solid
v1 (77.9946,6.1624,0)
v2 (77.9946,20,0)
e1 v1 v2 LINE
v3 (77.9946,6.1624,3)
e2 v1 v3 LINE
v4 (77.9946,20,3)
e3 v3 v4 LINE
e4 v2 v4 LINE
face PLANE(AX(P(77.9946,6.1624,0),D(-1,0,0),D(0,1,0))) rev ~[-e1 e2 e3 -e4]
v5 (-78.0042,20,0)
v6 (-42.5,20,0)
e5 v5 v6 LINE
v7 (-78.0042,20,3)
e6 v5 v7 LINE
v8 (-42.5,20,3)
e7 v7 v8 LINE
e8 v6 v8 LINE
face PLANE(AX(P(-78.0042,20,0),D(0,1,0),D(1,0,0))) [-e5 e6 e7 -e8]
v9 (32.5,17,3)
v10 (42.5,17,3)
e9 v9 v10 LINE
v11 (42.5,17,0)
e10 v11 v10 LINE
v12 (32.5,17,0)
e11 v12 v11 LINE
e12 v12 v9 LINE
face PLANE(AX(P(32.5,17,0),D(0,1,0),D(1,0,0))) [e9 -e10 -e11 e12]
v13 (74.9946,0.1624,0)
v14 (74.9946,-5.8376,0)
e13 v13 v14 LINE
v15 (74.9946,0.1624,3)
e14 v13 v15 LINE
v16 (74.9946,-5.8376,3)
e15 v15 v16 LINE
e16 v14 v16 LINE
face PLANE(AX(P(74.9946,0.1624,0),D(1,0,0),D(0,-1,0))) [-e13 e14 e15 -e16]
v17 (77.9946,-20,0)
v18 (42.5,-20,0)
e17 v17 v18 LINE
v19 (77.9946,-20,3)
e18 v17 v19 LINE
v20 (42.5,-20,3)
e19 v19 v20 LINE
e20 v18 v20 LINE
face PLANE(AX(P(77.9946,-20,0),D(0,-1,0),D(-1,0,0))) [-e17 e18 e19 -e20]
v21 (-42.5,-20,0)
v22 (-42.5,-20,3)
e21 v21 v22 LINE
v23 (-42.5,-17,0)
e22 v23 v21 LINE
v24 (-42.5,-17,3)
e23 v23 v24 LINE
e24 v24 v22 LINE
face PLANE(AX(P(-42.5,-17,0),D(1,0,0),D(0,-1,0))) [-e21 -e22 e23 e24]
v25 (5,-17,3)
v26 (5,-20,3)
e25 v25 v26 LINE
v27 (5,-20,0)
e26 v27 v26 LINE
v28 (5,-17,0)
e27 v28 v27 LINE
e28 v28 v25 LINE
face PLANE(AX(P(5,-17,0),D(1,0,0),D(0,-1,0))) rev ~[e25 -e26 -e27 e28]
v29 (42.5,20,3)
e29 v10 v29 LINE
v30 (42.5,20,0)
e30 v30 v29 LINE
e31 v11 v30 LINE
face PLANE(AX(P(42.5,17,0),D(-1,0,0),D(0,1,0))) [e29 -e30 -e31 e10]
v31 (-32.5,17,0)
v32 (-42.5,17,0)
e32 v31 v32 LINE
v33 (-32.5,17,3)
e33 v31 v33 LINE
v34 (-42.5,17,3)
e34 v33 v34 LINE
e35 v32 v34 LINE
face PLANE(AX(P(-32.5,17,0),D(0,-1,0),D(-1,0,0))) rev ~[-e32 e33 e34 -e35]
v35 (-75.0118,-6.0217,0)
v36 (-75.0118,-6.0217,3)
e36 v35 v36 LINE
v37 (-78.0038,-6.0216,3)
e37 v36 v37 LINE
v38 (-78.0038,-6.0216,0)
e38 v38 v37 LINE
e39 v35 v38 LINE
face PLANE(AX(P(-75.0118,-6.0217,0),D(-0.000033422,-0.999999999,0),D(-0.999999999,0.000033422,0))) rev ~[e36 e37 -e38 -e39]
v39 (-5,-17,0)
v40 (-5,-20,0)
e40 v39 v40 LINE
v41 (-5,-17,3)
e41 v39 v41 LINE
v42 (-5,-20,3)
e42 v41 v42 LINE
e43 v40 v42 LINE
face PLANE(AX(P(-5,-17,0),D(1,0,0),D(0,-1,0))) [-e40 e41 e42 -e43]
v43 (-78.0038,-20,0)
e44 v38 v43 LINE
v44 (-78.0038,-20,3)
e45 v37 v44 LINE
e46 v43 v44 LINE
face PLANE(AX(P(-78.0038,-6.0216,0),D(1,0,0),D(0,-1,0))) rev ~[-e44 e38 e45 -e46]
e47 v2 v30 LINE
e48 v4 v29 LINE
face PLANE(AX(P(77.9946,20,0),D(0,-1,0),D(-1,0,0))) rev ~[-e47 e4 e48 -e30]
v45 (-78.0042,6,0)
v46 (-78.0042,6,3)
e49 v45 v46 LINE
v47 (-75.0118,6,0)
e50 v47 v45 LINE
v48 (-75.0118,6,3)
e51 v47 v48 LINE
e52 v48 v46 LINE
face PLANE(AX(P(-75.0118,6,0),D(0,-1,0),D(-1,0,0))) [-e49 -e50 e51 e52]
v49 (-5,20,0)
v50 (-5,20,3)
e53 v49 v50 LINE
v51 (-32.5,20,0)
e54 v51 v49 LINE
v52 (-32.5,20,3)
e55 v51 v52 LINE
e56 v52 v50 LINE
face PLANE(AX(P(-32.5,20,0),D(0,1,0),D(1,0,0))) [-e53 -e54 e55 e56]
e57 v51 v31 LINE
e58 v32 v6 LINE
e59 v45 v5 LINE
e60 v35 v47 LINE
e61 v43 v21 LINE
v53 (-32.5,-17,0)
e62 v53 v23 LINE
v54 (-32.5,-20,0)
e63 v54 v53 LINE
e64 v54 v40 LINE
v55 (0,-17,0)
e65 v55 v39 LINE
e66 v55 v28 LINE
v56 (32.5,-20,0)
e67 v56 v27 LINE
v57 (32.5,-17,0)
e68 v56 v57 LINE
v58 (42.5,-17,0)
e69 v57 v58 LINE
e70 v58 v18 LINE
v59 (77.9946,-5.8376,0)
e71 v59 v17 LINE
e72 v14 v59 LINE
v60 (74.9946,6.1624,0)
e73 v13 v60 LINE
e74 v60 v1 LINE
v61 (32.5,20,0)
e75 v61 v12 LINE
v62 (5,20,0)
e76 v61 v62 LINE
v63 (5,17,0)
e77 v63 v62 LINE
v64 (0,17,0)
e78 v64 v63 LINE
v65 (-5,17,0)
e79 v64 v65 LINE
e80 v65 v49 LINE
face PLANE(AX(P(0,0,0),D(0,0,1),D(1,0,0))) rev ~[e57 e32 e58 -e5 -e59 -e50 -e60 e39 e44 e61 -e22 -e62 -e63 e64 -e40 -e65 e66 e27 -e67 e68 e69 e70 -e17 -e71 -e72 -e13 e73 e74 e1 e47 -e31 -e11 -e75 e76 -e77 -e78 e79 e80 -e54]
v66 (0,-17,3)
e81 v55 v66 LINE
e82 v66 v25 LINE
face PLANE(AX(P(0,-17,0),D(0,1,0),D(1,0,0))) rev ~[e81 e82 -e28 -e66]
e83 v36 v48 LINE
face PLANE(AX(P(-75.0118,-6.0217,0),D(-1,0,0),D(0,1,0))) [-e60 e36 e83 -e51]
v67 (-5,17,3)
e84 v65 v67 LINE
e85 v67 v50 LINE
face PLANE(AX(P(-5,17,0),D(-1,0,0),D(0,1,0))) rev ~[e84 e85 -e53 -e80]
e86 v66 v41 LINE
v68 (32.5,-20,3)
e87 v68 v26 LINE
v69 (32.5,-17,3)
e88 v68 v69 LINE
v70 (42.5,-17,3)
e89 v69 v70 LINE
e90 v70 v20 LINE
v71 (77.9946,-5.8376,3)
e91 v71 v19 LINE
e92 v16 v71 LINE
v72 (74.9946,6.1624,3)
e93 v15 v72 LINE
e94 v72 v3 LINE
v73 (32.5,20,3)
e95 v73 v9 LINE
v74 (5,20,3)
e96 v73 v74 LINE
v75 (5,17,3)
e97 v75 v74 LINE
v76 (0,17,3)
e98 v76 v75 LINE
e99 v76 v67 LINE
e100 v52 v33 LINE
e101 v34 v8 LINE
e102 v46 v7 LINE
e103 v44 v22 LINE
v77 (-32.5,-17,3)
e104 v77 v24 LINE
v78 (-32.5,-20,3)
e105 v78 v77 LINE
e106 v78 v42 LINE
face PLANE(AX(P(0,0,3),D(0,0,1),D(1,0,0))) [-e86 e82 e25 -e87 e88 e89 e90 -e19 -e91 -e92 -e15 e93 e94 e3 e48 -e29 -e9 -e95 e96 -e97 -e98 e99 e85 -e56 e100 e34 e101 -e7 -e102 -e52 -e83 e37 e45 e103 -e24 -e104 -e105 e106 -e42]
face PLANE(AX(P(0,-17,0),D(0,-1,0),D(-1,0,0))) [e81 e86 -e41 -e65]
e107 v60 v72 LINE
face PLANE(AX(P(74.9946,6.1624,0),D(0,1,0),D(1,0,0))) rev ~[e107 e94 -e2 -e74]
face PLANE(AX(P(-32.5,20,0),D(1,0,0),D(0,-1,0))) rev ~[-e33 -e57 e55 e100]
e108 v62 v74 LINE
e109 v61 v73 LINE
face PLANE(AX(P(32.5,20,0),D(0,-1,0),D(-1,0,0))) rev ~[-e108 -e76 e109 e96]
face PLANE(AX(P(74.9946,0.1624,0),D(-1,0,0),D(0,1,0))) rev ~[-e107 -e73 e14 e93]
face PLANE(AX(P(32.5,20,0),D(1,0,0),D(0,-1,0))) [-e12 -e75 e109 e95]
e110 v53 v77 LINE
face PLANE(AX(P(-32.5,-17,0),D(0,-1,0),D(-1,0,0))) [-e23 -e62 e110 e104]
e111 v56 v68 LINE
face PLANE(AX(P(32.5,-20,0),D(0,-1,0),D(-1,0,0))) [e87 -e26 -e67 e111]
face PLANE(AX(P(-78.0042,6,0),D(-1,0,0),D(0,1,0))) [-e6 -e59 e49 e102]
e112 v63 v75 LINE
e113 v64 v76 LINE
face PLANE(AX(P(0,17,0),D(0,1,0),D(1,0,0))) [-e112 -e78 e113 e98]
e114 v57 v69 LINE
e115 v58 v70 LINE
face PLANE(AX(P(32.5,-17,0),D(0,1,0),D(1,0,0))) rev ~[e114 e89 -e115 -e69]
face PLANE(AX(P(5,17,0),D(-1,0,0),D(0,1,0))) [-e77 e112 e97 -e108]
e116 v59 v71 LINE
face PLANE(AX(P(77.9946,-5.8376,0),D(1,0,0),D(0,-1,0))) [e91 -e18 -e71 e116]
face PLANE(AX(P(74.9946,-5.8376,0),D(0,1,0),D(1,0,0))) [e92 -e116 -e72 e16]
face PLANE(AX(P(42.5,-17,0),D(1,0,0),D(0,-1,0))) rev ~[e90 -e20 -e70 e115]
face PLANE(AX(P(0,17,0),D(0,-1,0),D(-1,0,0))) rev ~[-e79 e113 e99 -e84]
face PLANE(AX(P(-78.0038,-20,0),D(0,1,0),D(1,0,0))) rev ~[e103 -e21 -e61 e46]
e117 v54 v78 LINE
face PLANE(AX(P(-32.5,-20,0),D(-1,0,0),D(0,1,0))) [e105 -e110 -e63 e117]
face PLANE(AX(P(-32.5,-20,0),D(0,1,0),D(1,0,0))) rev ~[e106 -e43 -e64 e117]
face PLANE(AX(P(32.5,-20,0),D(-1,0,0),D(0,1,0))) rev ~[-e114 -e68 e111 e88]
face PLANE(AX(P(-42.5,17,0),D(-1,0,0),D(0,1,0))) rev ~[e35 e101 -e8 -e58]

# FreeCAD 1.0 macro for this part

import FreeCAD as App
import Part
import Sketcher

V = App.Vector
Q = App.Units.Quantity

doc = App.newDocument("Part")
body = doc.addObject("PartDesign::Body", "Body")

sketch1 = doc.addObject("Sketcher::SketchObject", "Sketch")
body.addObject(sketch1)
sketch1.AttachmentSupport = (doc.XY_Plane, [""])
sketch1.MapMode = "FlatFace"
sketch1.addGeometry([
    Part.LineSegment(V(-78.0042, 20, 0), V(-78.0042, 6, 0)),
    Part.LineSegment(V(-78.0042, 6, 0), V(-75.0118, 6, 0)),
    Part.LineSegment(V(-75.0118, 6, 0), V(-75.0118, -6.0217, 0)),
    Part.LineSegment(V(-75.0118, -6.0217, 0), V(-78.0038, -6.0216, 0)),
    Part.LineSegment(V(-78.0038, -6.0216, 0), V(-78.0038, -20, 0)),
    Part.LineSegment(V(-78.0038, -20, 0), V(-42.5, -20, 0)),
    Part.LineSegment(V(-42.5, -20, 0), V(-42.5, -17, 0)),
    Part.LineSegment(V(-42.5, -17, 0), V(-32.5, -17, 0)),
    Part.LineSegment(V(-32.5, -17, 0), V(-32.5, -20, 0)),
    Part.LineSegment(V(-32.5, -20, 0), V(-5, -20, 0)),
    Part.LineSegment(V(-5, -20, 0), V(-5, -17, 0)),
    Part.LineSegment(V(-5, -17, 0), V(5, -17, 0)),
    Part.LineSegment(V(5, -17, 0), V(5, -20, 0)),
    Part.LineSegment(V(5, -20, 0), V(32.5, -20, 0)),
    Part.LineSegment(V(32.5, -20, 0), V(32.5, -17, 0)),
    Part.LineSegment(V(32.5, -17, 0), V(42.5, -17, 0)),
    Part.LineSegment(V(42.5, -17, 0), V(42.5, -20, 0)),
    Part.LineSegment(V(42.5, -20, 0), V(77.9946, -20, 0)),
    Part.LineSegment(V(77.9946, -20, 0), V(77.9946, -5.8376, 0)),
    Part.LineSegment(V(77.9946, -5.8376, 0), V(74.9946, -5.8376, 0)),
    Part.LineSegment(V(74.9946, -5.8376, 0), V(74.9946, 6.1624, 0)),
    Part.LineSegment(V(74.9946, 6.1624, 0), V(77.9946, 6.1624, 0)),
    Part.LineSegment(V(77.9946, 6.1624, 0), V(77.9946, 20, 0)),
    Part.LineSegment(V(77.9946, 20, 0), V(42.5, 20, 0)),
    Part.LineSegment(V(42.5, 20, 0), V(42.5, 17, 0)),
    Part.LineSegment(V(42.5, 17, 0), V(32.5, 17, 0)),
    Part.LineSegment(V(32.5, 17, 0), V(32.5, 20, 0)),
    Part.LineSegment(V(32.5, 20, 0), V(5, 20, 0)),
    Part.LineSegment(V(5, 20, 0), V(5, 17, 0)),
    Part.LineSegment(V(5, 17, 0), V(-5, 17, 0)),
    Part.LineSegment(V(-5, 17, 0), V(-5, 20, 0)),
    Part.LineSegment(V(-5, 20, 0), V(-32.5, 20, 0)),
    Part.LineSegment(V(-32.5, 20, 0), V(-32.5, 17, 0)),
    Part.LineSegment(V(-32.5, 17, 0), V(-42.5, 17, 0)),
    Part.LineSegment(V(-42.5, 17, 0), V(-42.5, 20, 0)),
    Part.LineSegment(V(-42.5, 20, 0), V(-78.0042, 20, 0)),
], False)
sketch1.addConstraint([
    Sketcher.Constraint("Coincident", 0, 2, 1, 1),
    Sketcher.Constraint("Coincident", 1, 2, 2, 1),
    Sketcher.Constraint("Coincident", 2, 2, 3, 1),
    Sketcher.Constraint("Coincident", 3, 2, 4, 1),
    Sketcher.Constraint("Coincident", 4, 2, 5, 1),
    Sketcher.Constraint("Coincident", 5, 2, 6, 1),
    Sketcher.Constraint("Coincident", 6, 2, 7, 1),
    Sketcher.Constraint("Coincident", 7, 2, 8, 1),
    Sketcher.Constraint("Coincident", 8, 2, 9, 1),
    Sketcher.Constraint("Coincident", 9, 2, 10, 1),
    Sketcher.Constraint("Coincident", 10, 2, 11, 1),
    Sketcher.Constraint("Coincident", 11, 2, 12, 1),
    Sketcher.Constraint("Coincident", 12, 2, 13, 1),
    Sketcher.Constraint("Coincident", 13, 2, 14, 1),
    Sketcher.Constraint("Coincident", 14, 2, 15, 1),
    Sketcher.Constraint("Coincident", 15, 2, 16, 1),
    Sketcher.Constraint("Coincident", 16, 2, 17, 1),
    Sketcher.Constraint("Coincident", 17, 2, 18, 1),
    Sketcher.Constraint("Coincident", 18, 2, 19, 1),
    Sketcher.Constraint("Coincident", 19, 2, 20, 1),
    Sketcher.Constraint("Coincident", 20, 2, 21, 1),
    Sketcher.Constraint("Coincident", 21, 2, 22, 1),
    Sketcher.Constraint("Coincident", 22, 2, 23, 1),
    Sketcher.Constraint("Coincident", 23, 2, 24, 1),
    Sketcher.Constraint("Coincident", 24, 2, 25, 1),
    Sketcher.Constraint("Coincident", 25, 2, 26, 1),
    Sketcher.Constraint("Coincident", 26, 2, 27, 1),
    Sketcher.Constraint("Coincident", 27, 2, 28, 1),
    Sketcher.Constraint("Coincident", 28, 2, 29, 1),
    Sketcher.Constraint("Coincident", 29, 2, 30, 1),
    Sketcher.Constraint("Coincident", 30, 2, 31, 1),
    Sketcher.Constraint("Coincident", 31, 2, 32, 1),
    Sketcher.Constraint("Coincident", 32, 2, 33, 1),
    Sketcher.Constraint("Coincident", 33, 2, 34, 1),
    Sketcher.Constraint("Coincident", 34, 2, 35, 1),
    Sketcher.Constraint("Coincident", 35, 2, 0, 1),
    Sketcher.Constraint("Vertical", 0),
    Sketcher.Constraint("Horizontal", 1),
    Sketcher.Constraint("Vertical", 2),
    Sketcher.Constraint("Horizontal", 3),
    Sketcher.Constraint("Vertical", 4),
    Sketcher.Constraint("Horizontal", 5),
    Sketcher.Constraint("Vertical", 6),
    Sketcher.Constraint("Horizontal", 7),
    Sketcher.Constraint("Vertical", 8),
    Sketcher.Constraint("Horizontal", 9),
    Sketcher.Constraint("Vertical", 10),
    Sketcher.Constraint("Horizontal", 11),
    Sketcher.Constraint("Vertical", 12),
    Sketcher.Constraint("Horizontal", 13),
    Sketcher.Constraint("Vertical", 14),
    Sketcher.Constraint("Horizontal", 15),
    Sketcher.Constraint("Vertical", 16),
    Sketcher.Constraint("Horizontal", 17),
    Sketcher.Constraint("Vertical", 18),
    Sketcher.Constraint("Horizontal", 19),
    Sketcher.Constraint("Vertical", 20),
    Sketcher.Constraint("Horizontal", 21),
    Sketcher.Constraint("Vertical", 22),
    Sketcher.Constraint("Horizontal", 23),
    Sketcher.Constraint("Vertical", 24),
    Sketcher.Constraint("Horizontal", 25),
    Sketcher.Constraint("Vertical", 26),
    Sketcher.Constraint("Horizontal", 27),
    Sketcher.Constraint("Vertical", 28),
    Sketcher.Constraint("Horizontal", 29),
    Sketcher.Constraint("Vertical", 30),
    Sketcher.Constraint("Horizontal", 31),
    Sketcher.Constraint("Vertical", 32),
    Sketcher.Constraint("Horizontal", 33),
    Sketcher.Constraint("Vertical", 34),
    Sketcher.Constraint("Horizontal", 35),
    Sketcher.Constraint("Symmetric", 5, 2, 23, 2, -1, 1),
    Sketcher.Constraint("Symmetric", 7, 2, 25, 2, -1, 1),
    Sketcher.Constraint("Symmetric", 9, 2, 27, 2, -1, 1),
    Sketcher.Constraint("Symmetric", 11, 2, 29, 2, -1, 1),
    Sketcher.Constraint("Symmetric", 13, 2, 31, 2, -1, 1),
    Sketcher.Constraint("Symmetric", 15, 2, 33, 2, -1, 1),
    Sketcher.Constraint("Symmetric", 9, 2, 12, 2, -2),
    Sketcher.Constraint("Symmetric", 7, 2, 14, 2, -2),
    Sketcher.Constraint("Symmetric", 5, 2, 16, 2, -2),
    Sketcher.Constraint("Symmetric", 4, 2, 35, 2, -1),
    Sketcher.Constraint("Horizontal", 5, 2, 8, 2),
    Sketcher.Constraint("Horizontal", 7, 2, 10, 2),
    Sketcher.Constraint("Vertical", 18, 2, 21, 2),
    Sketcher.Constraint("Equal", 7, 11),
    Sketcher.Constraint("Equal", 21, 6),
    Sketcher.Constraint("DistanceX", 7, 1, 7, 2, Q("10 mm")),
    Sketcher.Constraint("DistanceX", 19, 2, 19, 1, Q("3 mm")),
    Sketcher.Constraint("DistanceY", 0, 2, 0, 1, Q("14 mm")),
    Sketcher.Constraint("DistanceY", 20, 1, 20, 2, Q("12 mm")),
    Sketcher.Constraint("DistanceX", 9, 1, 9, 2, Q("27.5 mm")),
    Sketcher.Constraint("DistanceY", -1, 1, 0, 2, Q("6 mm")),
    Sketcher.Constraint("DistanceX", 3, 2, 3, 1, Q("2.992 mm")),
    Sketcher.Constraint("DistanceX", 5, 1, 5, 2, Q("35.5038 mm")),
    Sketcher.Constraint("DistanceX", 17, 1, 17, 2, Q("35.4946 mm")),
    Sketcher.Constraint("DistanceY", 2, 2, 2, 1, Q("12.0217 mm")),
    Sketcher.Constraint("DistanceY", 18, 1, 18, 2, Q("14.1624 mm")),
])
pad1 = doc.addObject("PartDesign::Pad", "Pad")
body.addObject(pad1)
pad1.Profile = sketch1
pad1.Length = 3

doc.recompute()
